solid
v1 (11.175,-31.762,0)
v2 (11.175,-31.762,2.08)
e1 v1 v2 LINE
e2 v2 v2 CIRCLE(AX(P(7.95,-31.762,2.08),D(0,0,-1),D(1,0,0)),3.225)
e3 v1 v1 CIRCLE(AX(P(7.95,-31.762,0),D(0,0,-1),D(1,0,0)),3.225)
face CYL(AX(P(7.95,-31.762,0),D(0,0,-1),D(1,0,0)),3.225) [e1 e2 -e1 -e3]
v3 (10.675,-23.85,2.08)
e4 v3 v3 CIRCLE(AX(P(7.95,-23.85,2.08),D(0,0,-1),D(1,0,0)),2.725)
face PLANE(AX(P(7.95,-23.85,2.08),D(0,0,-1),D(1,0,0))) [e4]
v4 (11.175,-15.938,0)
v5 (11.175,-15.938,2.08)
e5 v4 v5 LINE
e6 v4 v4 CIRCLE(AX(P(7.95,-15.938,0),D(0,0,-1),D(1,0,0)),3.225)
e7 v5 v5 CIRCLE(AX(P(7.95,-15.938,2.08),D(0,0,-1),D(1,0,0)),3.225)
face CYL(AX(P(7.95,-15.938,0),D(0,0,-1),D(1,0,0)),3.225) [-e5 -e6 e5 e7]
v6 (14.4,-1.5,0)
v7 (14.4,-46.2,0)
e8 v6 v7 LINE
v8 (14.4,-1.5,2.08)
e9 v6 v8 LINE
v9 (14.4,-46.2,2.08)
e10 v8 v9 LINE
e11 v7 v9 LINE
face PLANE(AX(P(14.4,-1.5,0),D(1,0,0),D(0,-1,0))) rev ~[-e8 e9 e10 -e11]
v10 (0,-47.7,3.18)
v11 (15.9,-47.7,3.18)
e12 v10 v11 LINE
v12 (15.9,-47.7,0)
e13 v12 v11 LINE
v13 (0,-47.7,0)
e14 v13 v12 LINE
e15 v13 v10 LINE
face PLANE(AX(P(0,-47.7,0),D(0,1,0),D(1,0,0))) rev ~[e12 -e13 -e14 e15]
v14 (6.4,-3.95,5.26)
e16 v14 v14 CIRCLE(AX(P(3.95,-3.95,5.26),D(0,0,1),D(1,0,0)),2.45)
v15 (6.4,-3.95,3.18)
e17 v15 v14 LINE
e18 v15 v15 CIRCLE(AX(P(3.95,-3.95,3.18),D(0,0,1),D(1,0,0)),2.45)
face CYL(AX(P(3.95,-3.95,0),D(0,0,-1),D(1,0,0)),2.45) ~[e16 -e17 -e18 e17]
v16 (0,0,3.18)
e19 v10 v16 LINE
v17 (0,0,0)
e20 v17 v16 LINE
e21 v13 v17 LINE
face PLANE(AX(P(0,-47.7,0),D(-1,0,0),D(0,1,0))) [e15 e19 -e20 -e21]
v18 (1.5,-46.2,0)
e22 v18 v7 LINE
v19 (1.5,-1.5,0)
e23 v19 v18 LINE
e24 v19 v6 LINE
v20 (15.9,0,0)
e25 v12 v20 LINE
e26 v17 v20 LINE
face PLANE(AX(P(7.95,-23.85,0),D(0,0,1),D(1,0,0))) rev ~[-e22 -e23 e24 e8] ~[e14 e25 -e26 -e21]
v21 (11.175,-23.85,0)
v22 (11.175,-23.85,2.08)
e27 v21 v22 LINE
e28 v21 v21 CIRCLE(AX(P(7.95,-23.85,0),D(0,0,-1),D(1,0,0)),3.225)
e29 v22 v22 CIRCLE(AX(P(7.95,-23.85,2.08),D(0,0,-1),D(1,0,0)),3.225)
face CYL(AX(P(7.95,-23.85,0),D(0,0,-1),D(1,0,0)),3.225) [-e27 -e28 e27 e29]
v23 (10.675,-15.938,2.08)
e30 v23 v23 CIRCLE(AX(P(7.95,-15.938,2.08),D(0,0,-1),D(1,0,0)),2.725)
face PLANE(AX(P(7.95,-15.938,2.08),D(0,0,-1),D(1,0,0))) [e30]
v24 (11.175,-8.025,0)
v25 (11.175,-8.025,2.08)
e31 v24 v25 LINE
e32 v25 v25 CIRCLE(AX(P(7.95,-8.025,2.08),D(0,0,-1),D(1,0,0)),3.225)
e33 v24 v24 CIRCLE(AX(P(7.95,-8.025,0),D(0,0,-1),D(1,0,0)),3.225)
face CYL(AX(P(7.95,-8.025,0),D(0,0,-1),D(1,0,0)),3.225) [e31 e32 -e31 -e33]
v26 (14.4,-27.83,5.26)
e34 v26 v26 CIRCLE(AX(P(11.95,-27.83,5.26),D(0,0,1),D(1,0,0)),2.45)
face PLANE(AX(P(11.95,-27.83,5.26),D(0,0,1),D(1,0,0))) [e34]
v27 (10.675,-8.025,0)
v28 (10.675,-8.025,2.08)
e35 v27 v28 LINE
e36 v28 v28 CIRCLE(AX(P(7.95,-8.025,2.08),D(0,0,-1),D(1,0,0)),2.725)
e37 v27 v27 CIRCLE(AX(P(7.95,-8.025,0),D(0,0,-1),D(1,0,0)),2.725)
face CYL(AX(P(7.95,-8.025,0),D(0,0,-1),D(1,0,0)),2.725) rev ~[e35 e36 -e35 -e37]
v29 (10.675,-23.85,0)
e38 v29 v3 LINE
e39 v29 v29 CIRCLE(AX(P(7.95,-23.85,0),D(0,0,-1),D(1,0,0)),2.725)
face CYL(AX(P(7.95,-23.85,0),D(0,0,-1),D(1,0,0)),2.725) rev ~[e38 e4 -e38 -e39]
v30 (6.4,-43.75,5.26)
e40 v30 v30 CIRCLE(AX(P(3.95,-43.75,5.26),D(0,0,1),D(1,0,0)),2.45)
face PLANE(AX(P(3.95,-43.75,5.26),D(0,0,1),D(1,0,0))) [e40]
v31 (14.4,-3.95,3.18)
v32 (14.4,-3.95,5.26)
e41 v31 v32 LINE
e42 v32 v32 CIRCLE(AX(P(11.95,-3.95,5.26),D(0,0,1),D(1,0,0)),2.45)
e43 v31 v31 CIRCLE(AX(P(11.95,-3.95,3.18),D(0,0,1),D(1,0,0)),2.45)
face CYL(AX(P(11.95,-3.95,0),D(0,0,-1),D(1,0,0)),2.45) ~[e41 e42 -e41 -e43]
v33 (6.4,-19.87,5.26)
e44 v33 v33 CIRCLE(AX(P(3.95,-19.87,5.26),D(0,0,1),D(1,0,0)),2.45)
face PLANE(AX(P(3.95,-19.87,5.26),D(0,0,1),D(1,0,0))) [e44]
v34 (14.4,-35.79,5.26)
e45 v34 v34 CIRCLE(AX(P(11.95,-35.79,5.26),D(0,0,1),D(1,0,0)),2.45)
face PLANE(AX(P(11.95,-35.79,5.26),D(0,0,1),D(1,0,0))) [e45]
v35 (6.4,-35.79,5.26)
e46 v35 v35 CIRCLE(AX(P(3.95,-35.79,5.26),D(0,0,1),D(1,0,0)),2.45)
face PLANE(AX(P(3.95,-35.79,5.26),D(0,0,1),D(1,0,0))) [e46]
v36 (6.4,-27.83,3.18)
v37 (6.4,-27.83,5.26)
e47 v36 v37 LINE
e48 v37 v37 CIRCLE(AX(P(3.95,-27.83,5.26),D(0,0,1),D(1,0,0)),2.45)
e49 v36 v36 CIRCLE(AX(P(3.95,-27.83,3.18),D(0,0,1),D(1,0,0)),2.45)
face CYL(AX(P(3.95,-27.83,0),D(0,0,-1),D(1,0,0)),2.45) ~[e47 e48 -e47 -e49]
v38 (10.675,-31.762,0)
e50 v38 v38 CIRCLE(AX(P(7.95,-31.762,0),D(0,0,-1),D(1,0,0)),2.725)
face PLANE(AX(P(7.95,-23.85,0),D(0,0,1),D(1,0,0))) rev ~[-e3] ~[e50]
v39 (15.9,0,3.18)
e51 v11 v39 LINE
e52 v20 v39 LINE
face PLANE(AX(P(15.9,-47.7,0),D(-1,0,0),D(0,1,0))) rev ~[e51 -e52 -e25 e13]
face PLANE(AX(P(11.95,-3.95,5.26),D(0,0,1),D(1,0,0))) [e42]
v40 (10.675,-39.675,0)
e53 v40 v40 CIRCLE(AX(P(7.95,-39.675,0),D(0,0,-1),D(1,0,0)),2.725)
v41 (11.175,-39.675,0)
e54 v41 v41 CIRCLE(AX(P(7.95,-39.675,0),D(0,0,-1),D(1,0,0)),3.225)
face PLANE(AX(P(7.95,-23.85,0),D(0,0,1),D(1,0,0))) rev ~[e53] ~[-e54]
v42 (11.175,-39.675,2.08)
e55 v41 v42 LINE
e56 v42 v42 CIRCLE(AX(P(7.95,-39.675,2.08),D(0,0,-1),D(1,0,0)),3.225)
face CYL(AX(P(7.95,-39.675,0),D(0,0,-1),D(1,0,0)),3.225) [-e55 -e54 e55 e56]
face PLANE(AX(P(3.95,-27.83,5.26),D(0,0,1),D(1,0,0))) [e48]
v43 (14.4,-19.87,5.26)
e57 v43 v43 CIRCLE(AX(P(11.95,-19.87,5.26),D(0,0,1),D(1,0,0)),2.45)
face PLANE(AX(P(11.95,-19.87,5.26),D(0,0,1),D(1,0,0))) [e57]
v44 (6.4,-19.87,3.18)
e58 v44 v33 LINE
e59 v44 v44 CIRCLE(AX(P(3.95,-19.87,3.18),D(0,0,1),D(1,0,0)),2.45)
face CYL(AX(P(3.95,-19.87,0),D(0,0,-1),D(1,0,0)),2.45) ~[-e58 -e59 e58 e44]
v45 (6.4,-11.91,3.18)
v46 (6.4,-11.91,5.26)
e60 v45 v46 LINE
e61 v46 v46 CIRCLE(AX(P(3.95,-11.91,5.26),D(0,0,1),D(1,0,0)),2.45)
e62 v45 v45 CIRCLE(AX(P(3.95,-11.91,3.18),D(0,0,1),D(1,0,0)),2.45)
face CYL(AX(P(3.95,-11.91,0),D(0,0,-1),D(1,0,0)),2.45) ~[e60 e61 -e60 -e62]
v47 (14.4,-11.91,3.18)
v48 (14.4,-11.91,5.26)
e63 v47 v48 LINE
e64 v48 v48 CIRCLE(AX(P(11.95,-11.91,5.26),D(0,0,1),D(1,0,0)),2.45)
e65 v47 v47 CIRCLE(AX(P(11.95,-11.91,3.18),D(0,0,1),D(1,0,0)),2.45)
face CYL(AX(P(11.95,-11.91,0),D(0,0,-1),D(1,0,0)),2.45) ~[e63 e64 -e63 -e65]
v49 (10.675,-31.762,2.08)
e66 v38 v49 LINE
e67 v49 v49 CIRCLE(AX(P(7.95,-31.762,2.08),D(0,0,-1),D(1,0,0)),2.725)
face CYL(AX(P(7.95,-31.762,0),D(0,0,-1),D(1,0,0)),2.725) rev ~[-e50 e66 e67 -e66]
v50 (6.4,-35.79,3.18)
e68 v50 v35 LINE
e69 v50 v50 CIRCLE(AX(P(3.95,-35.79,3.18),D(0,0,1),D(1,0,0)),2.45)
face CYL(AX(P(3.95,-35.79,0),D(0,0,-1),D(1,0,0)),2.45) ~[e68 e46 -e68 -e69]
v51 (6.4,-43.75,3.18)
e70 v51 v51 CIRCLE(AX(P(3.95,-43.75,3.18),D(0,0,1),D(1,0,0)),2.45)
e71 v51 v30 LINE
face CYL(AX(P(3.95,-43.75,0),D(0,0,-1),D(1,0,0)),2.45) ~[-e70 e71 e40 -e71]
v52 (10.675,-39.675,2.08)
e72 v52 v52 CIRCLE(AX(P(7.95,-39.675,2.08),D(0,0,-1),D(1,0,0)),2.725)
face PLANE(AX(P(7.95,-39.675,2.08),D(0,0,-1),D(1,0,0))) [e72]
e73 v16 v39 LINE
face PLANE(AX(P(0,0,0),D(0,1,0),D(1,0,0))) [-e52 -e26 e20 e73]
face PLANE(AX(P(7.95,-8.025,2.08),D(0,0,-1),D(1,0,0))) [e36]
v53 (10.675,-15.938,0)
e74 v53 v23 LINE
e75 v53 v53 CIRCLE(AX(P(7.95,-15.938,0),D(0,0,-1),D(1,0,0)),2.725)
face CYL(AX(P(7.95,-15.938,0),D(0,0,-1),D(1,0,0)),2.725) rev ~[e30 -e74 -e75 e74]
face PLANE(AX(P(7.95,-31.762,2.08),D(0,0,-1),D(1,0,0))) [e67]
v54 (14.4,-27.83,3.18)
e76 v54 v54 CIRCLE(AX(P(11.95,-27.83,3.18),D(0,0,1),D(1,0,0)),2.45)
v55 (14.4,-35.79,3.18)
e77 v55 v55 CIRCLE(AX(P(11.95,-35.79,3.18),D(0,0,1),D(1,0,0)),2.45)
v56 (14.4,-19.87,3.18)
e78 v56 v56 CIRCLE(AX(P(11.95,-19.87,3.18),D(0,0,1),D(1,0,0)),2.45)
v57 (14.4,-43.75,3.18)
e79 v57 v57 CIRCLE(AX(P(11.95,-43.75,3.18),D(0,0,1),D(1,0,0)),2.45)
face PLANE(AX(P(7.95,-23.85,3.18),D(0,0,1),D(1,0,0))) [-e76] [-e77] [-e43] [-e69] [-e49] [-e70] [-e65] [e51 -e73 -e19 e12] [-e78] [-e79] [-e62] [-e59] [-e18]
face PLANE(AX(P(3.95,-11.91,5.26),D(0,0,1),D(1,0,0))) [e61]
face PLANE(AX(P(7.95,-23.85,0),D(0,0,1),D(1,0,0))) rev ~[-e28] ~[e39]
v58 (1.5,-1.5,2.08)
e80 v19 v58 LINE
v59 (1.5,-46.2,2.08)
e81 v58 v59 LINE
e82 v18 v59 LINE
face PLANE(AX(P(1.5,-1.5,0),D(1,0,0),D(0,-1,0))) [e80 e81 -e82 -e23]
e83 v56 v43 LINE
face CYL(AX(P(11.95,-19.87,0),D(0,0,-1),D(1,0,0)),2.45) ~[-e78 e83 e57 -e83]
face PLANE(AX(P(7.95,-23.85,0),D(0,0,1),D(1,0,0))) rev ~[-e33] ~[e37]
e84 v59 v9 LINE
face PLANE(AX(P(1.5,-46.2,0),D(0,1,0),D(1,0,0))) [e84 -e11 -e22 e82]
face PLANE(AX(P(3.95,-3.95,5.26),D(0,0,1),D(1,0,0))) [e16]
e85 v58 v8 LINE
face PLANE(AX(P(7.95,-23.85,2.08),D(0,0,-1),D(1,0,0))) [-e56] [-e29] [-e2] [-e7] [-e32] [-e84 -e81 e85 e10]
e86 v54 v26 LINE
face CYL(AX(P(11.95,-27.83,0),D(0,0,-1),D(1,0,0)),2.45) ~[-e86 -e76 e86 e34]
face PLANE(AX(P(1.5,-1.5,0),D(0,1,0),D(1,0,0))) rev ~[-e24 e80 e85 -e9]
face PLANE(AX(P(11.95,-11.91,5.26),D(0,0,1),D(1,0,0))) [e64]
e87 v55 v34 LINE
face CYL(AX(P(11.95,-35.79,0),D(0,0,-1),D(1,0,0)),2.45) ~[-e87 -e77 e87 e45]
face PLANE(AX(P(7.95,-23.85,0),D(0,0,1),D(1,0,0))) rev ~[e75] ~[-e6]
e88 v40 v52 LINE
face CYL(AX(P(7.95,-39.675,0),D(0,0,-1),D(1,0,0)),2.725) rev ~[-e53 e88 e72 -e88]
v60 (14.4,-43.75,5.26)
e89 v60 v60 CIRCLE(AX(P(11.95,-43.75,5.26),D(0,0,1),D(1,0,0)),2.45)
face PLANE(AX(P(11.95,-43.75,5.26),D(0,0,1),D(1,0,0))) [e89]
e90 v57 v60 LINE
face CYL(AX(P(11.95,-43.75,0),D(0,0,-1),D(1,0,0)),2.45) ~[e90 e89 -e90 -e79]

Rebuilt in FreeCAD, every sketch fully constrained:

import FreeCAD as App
import Part
import Sketcher

doc = App.newDocument("Part")
body = doc.addObject("PartDesign::Body", "Body")

# Sketch on XY plane
sketch1 = doc.addObject("Sketcher::SketchObject", "Sketch")
body.addObject(sketch1)
sketch1.AttachmentSupport = (doc.XY_Plane, [""])
sketch1.MapMode = "FlatFace"
sketch1.addGeometry(Part.LineSegment(App.Vector(0, 0, 0), App.Vector(0, -47.7, 0)), False)
sketch1.addGeometry(Part.LineSegment(App.Vector(0, -47.7, 0), App.Vector(15.9, -47.7, 0)), False)
sketch1.addGeometry(Part.LineSegment(App.Vector(15.9, -47.7, 0), App.Vector(15.9, 0, 0)), False)
sketch1.addGeometry(Part.LineSegment(App.Vector(15.9, 0, 0), App.Vector(0, 0, 0)), False)
sketch1.addGeometry(Part.Circle(App.Vector(4, -43.8, 0), App.Vector(0, 0, 1), 2.5), False)
sketch1.addGeometry(Part.Circle(App.Vector(4, -35.8, 0), App.Vector(0, 0, 1), 2.5), False)
sketch1.addGeometry(Part.Circle(App.Vector(4, -27.8, 0), App.Vector(0, 0, 1), 2.5), False)
sketch1.addGeometry(Part.Circle(App.Vector(11.9, -43.8, 0), App.Vector(0, 0, 1), 2.5), False)
sketch1.addGeometry(Part.Circle(App.Vector(11.9, -35.8, 0), App.Vector(0, 0, 1), 2.5), False)
sketch1.addGeometry(Part.Circle(App.Vector(11.9, -27.8, 0), App.Vector(0, 0, 1), 2.5), False)
sketch1.addGeometry(Part.Circle(App.Vector(4, -19.9, 0), App.Vector(0, 0, 1), 2.5), False)
sketch1.addGeometry(Part.Circle(App.Vector(4, -11.9, 0), App.Vector(0, 0, 1), 2.5), False)
sketch1.addGeometry(Part.Circle(App.Vector(4, -4, 0), App.Vector(0, 0, 1), 2.5), False)
sketch1.addGeometry(Part.Circle(App.Vector(11.9, -19.9, 0), App.Vector(0, 0, 1), 2.5), False)
sketch1.addGeometry(Part.Circle(App.Vector(11.9, -11.9, 0), App.Vector(0, 0, 1), 2.5), False)
sketch1.addGeometry(Part.Circle(App.Vector(11.9, -4, 0), App.Vector(0, 0, 1), 2.5), False)
sketch1.addConstraint(Sketcher.Constraint("Coincident", 0, 2, 1, 1))
sketch1.addConstraint(Sketcher.Constraint("Coincident", 1, 2, 2, 1))
sketch1.addConstraint(Sketcher.Constraint("Coincident", 2, 2, 3, 1))
sketch1.addConstraint(Sketcher.Constraint("Coincident", 3, 2, 0, 1))
sketch1.addConstraint(Sketcher.Constraint("Vertical", 0))
sketch1.addConstraint(Sketcher.Constraint("Horizontal", 1))
sketch1.addConstraint(Sketcher.Constraint("Vertical", 2))
sketch1.addConstraint(Sketcher.Constraint("Horizontal", 3))
sketch1.addConstraint(Sketcher.Constraint("Coincident", 3, 2, -1, 1))
sketch1.addConstraint(Sketcher.Constraint("Equal", 4, 5))
sketch1.addConstraint(Sketcher.Constraint("Equal", 5, 6))
sketch1.addConstraint(Sketcher.Constraint("Equal", 6, 7))
sketch1.addConstraint(Sketcher.Constraint("Equal", 7, 8))
sketch1.addConstraint(Sketcher.Constraint("Equal", 8, 9))
sketch1.addConstraint(Sketcher.Constraint("Equal", 9, 10))
sketch1.addConstraint(Sketcher.Constraint("Equal", 10, 11))
sketch1.addConstraint(Sketcher.Constraint("Equal", 11, 12))
sketch1.addConstraint(Sketcher.Constraint("Equal", 12, 13))
sketch1.addConstraint(Sketcher.Constraint("Equal", 13, 14))
sketch1.addConstraint(Sketcher.Constraint("Equal", 14, 15))
sketch1.addConstraint(Sketcher.Constraint("Horizontal", 4, 3, 7, 3))
sketch1.addConstraint(Sketcher.Constraint("Horizontal", 5, 3, 8, 3))
sketch1.addConstraint(Sketcher.Constraint("Horizontal", 6, 3, 9, 3))
sketch1.addConstraint(Sketcher.Constraint("Horizontal", 10, 3, 13, 3))
sketch1.addConstraint(Sketcher.Constraint("Horizontal", 11, 3, 14, 3))
sketch1.addConstraint(Sketcher.Constraint("Horizontal", 12, 3, 15, 3))
sketch1.addConstraint(Sketcher.Constraint("Vertical", 4, 3, 5, 3))
sketch1.addConstraint(Sketcher.Constraint("Vertical", 5, 3, 6, 3))
sketch1.addConstraint(Sketcher.Constraint("Vertical", 7, 3, 8, 3))
sketch1.addConstraint(Sketcher.Constraint("Vertical", 8, 3, 9, 3))
sketch1.addConstraint(Sketcher.Constraint("Vertical", 6, 3, 10, 3))
sketch1.addConstraint(Sketcher.Constraint("Vertical", 10, 3, 11, 3))
sketch1.addConstraint(Sketcher.Constraint("Vertical", 11, 3, 12, 3))
sketch1.addConstraint(Sketcher.Constraint("Vertical", 9, 3, 13, 3))
sketch1.addConstraint(Sketcher.Constraint("Vertical", 13, 3, 14, 3))
sketch1.addConstraint(Sketcher.Constraint("Vertical", 14, 3, 15, 3))
sketch1.addConstraint(Sketcher.Constraint("Diameter", 4, 4.9))
sketch1.addConstraint(Sketcher.Constraint("DistanceX", 1, 1, 1, 2, 15.9))
sketch1.addConstraint(Sketcher.Constraint("DistanceY", 0, 2, 0, 1, 47.7))
sketch1.addConstraint(Sketcher.Constraint("DistanceX", 4, 3, 7, 3, 8.0))
sketch1.addConstraint(Sketcher.Constraint("DistanceX", -1, 1, 4, 3, 3.95))
sketch1.addConstraint(Sketcher.Constraint("DistanceY", 4, 3, -1, 1, 43.75))
sketch1.addConstraint(Sketcher.Constraint("DistanceY", 5, 3, -1, 1, 35.79))
sketch1.addConstraint(Sketcher.Constraint("DistanceY", 6, 3, -1, 1, 27.83))
sketch1.addConstraint(Sketcher.Constraint("DistanceY", 10, 3, -1, 1, 19.87))
sketch1.addConstraint(Sketcher.Constraint("DistanceY", 11, 3, -1, 1, 11.91))
sketch1.addConstraint(Sketcher.Constraint("DistanceY", 12, 3, -1, 1, 3.95))
pad1 = doc.addObject("PartDesign::Pad", "Pad")
body.addObject(pad1)
pad1.Profile = sketch1
pad1.Length = 3.18

# Sketch on XY plane
sketch2 = doc.addObject("Sketcher::SketchObject", "Sketch001")
body.addObject(sketch2)
sketch2.AttachmentSupport = (doc.XY_Plane, [""])
sketch2.MapMode = "FlatFace"
sketch2.addGeometry(Part.Circle(App.Vector(4, -4, 0), App.Vector(0, 0, 1), 2.5), False)
sketch2.addGeometry(Part.Circle(App.Vector(11.9, -4, 0), App.Vector(0, 0, 1), 2.5), False)
sketch2.addGeometry(Part.Circle(App.Vector(11.9, -11.9, 0), App.Vector(0, 0, 1), 2.5), False)
sketch2.addGeometry(Part.Circle(App.Vector(4, -11.9, 0), App.Vector(0, 0, 1), 2.5), False)
sketch2.addGeometry(Part.Circle(App.Vector(4, -19.9, 0), App.Vector(0, 0, 1), 2.5), False)
sketch2.addGeometry(Part.Circle(App.Vector(11.9, -19.9, 0), App.Vector(0, 0, 1), 2.5), False)
sketch2.addGeometry(Part.Circle(App.Vector(11.9, -27.8, 0), App.Vector(0, 0, 1), 2.5), False)
sketch2.addGeometry(Part.Circle(App.Vector(4, -27.8, 0), App.Vector(0, 0, 1), 2.5), False)
sketch2.addGeometry(Part.Circle(App.Vector(4, -35.8, 0), App.Vector(0, 0, 1), 2.5), False)
sketch2.addGeometry(Part.Circle(App.Vector(11.9, -35.8, 0), App.Vector(0, 0, 1), 2.5), False)
sketch2.addGeometry(Part.Circle(App.Vector(11.9, -43.8, 0), App.Vector(0, 0, 1), 2.5), False)
sketch2.addGeometry(Part.Circle(App.Vector(4, -43.8, 0), App.Vector(0, 0, 1), 2.5), False)
sketch2.addConstraint(Sketcher.Constraint("Equal", 0, 1))
sketch2.addConstraint(Sketcher.Constraint("Equal", 1, 2))
sketch2.addConstraint(Sketcher.Constraint("Equal", 2, 3))
sketch2.addConstraint(Sketcher.Constraint("Equal", 3, 4))
sketch2.addConstraint(Sketcher.Constraint("Equal", 4, 5))
sketch2.addConstraint(Sketcher.Constraint("Equal", 5, 6))
sketch2.addConstraint(Sketcher.Constraint("Equal", 6, 7))
sketch2.addConstraint(Sketcher.Constraint("Equal", 7, 8))
sketch2.addConstraint(Sketcher.Constraint("Equal", 8, 9))
sketch2.addConstraint(Sketcher.Constraint("Equal", 9, 10))
sketch2.addConstraint(Sketcher.Constraint("Equal", 10, 11))
sketch2.addConstraint(Sketcher.Constraint("Horizontal", 0, 3, 1, 3))
sketch2.addConstraint(Sketcher.Constraint("Horizontal", 2, 3, 3, 3))
sketch2.addConstraint(Sketcher.Constraint("Horizontal", 4, 3, 5, 3))
sketch2.addConstraint(Sketcher.Constraint("Horizontal", 6, 3, 7, 3))
sketch2.addConstraint(Sketcher.Constraint("Horizontal", 8, 3, 9, 3))
sketch2.addConstraint(Sketcher.Constraint("Horizontal", 10, 3, 11, 3))
sketch2.addConstraint(Sketcher.Constraint("Vertical", 1, 3, 2, 3))
sketch2.addConstraint(Sketcher.Constraint("Vertical", 0, 3, 3, 3))
sketch2.addConstraint(Sketcher.Constraint("Vertical", 3, 3, 4, 3))
sketch2.addConstraint(Sketcher.Constraint("Vertical", 2, 3, 5, 3))
sketch2.addConstraint(Sketcher.Constraint("Vertical", 5, 3, 6, 3))
sketch2.addConstraint(Sketcher.Constraint("Vertical", 4, 3, 7, 3))
sketch2.addConstraint(Sketcher.Constraint("Vertical", 7, 3, 8, 3))
sketch2.addConstraint(Sketcher.Constraint("Vertical", 6, 3, 9, 3))
sketch2.addConstraint(Sketcher.Constraint("Vertical", 9, 3, 10, 3))
sketch2.addConstraint(Sketcher.Constraint("Vertical", 8, 3, 11, 3))
sketch2.addConstraint(Sketcher.Constraint("Diameter", 0, 4.9))
sketch2.addConstraint(Sketcher.Constraint("DistanceX", 0, 3, 1, 3, 8.0))
sketch2.addConstraint(Sketcher.Constraint("DistanceX", -1, 1, 0, 3, 3.95))
sketch2.addConstraint(Sketcher.Constraint("DistanceY", 0, 3, -1, 1, 3.95))
sketch2.addConstraint(Sketcher.Constraint("DistanceY", 2, 3, -1, 1, 11.91))
sketch2.addConstraint(Sketcher.Constraint("DistanceY", 4, 3, -1, 1, 19.87))
sketch2.addConstraint(Sketcher.Constraint("DistanceY", 6, 3, -1, 1, 27.83))
sketch2.addConstraint(Sketcher.Constraint("DistanceY", 8, 3, -1, 1, 35.79))
sketch2.addConstraint(Sketcher.Constraint("DistanceY", 10, 3, -1, 1, 43.75))
pad2 = doc.addObject("PartDesign::Pad", "Pad001")
body.addObject(pad2)
pad2.Profile = sketch2
pad2.Length = 5.26

# Sketch on XY plane
sketch3 = doc.addObject("Sketcher::SketchObject", "Sketch002")
body.addObject(sketch3)
sketch3.AttachmentSupport = (doc.XY_Plane, [""])
sketch3.MapMode = "FlatFace"
sketch3.addGeometry(Part.LineSegment(App.Vector(1.5, -46.2, 0), App.Vector(1.5, -1.5, 0)), False)
sketch3.addGeometry(Part.LineSegment(App.Vector(1.5, -1.5, 0), App.Vector(14.4, -1.5, 0)), False)
sketch3.addGeometry(Part.LineSegment(App.Vector(14.4, -1.5, 0), App.Vector(14.4, -46.2, 0)), False)
sketch3.addGeometry(Part.LineSegment(App.Vector(14.4, -46.2, 0), App.Vector(1.5, -46.2, 0)), False)
sketch3.addGeometry(Part.Circle(App.Vector(8, -8, 0), App.Vector(0, 0, 1), 3.2), False)
sketch3.addGeometry(Part.Circle(App.Vector(8, -15.9, 0), App.Vector(0, 0, 1), 3.2), False)
sketch3.addGeometry(Part.Circle(App.Vector(8, -23.9, 0), App.Vector(0, 0, 1), 3.2), False)
sketch3.addGeometry(Part.Circle(App.Vector(8, -31.8, 0), App.Vector(0, 0, 1), 3.2), False)
sketch3.addGeometry(Part.Circle(App.Vector(8, -39.7, 0), App.Vector(0, 0, 1), 3.2), False)
sketch3.addGeometry(Part.Circle(App.Vector(8, -39.7, 0), App.Vector(0, 0, 1), 2.7), False)
sketch3.addGeometry(Part.Circle(App.Vector(8, -31.8, 0), App.Vector(0, 0, 1), 2.7), False)
sketch3.addGeometry(Part.Circle(App.Vector(8, -23.9, 0), App.Vector(0, 0, 1), 2.7), False)
sketch3.addGeometry(Part.Circle(App.Vector(8, -15.9, 0), App.Vector(0, 0, 1), 2.7), False)
sketch3.addGeometry(Part.Circle(App.Vector(8, -8, 0), App.Vector(0, 0, 1), 2.7), False)
sketch3.addConstraint(Sketcher.Constraint("Coincident", 0, 2, 1, 1))
sketch3.addConstraint(Sketcher.Constraint("Coincident", 1, 2, 2, 1))
sketch3.addConstraint(Sketcher.Constraint("Coincident", 2, 2, 3, 1))
sketch3.addConstraint(Sketcher.Constraint("Coincident", 3, 2, 0, 1))
sketch3.addConstraint(Sketcher.Constraint("Vertical", 0))
sketch3.addConstraint(Sketcher.Constraint("Horizontal", 1))
sketch3.addConstraint(Sketcher.Constraint("Vertical", 2))
sketch3.addConstraint(Sketcher.Constraint("Horizontal", 3))
sketch3.addConstraint(Sketcher.Constraint("Coincident", 9, 3, 8, 3))
sketch3.addConstraint(Sketcher.Constraint("Coincident", 10, 3, 7, 3))
sketch3.addConstraint(Sketcher.Constraint("Coincident", 11, 3, 6, 3))
sketch3.addConstraint(Sketcher.Constraint("Coincident", 12, 3, 5, 3))
sketch3.addConstraint(Sketcher.Constraint("Coincident", 13, 3, 4, 3))
sketch3.addConstraint(Sketcher.Constraint("Equal", 4, 5))
sketch3.addConstraint(Sketcher.Constraint("Equal", 5, 6))
sketch3.addConstraint(Sketcher.Constraint("Equal", 6, 7))
sketch3.addConstraint(Sketcher.Constraint("Equal", 7, 8))
sketch3.addConstraint(Sketcher.Constraint("Equal", 9, 10))
sketch3.addConstraint(Sketcher.Constraint("Equal", 10, 11))
sketch3.addConstraint(Sketcher.Constraint("Equal", 11, 12))
sketch3.addConstraint(Sketcher.Constraint("Equal", 12, 13))
sketch3.addConstraint(Sketcher.Constraint("Vertical", 4, 3, 5, 3))
sketch3.addConstraint(Sketcher.Constraint("Vertical", 5, 3, 6, 3))
sketch3.addConstraint(Sketcher.Constraint("Vertical", 6, 3, 7, 3))
sketch3.addConstraint(Sketcher.Constraint("Vertical", 7, 3, 8, 3))
sketch3.addConstraint(Sketcher.Constraint("Diameter", 4, 6.45))
sketch3.addConstraint(Sketcher.Constraint("Diameter", 9, 5.45))
sketch3.addConstraint(Sketcher.Constraint("DistanceX", 1, 1, 1, 2, 12.9))
sketch3.addConstraint(Sketcher.Constraint("DistanceY", 0, 1, 0, 2, 44.7))
sketch3.addConstraint(Sketcher.Constraint("DistanceX", -1, 1, 0, 2, 1.5))
sketch3.addConstraint(Sketcher.Constraint("DistanceY", 0, 2, -1, 1, 1.5))
sketch3.addConstraint(Sketcher.Constraint("DistanceX", -1, 1, 4, 3, 7.95))
sketch3.addConstraint(Sketcher.Constraint("DistanceY", 6, 3, -1, 1, 23.85))
sketch3.addConstraint(Sketcher.Constraint("DistanceY", 8, 3, 4, 3, 31.65))
sketch3.addConstraint(Sketcher.Constraint("DistanceY", 4, 3, -1, 1, 8.025))
sketch3.addConstraint(Sketcher.Constraint("DistanceY", 5, 3, -1, 1, 15.938))
sketch3.addConstraint(Sketcher.Constraint("DistanceY", 7, 3, -1, 1, 31.762))
pocket1 = doc.addObject("PartDesign::Pocket", "Pocket")
body.addObject(pocket1)
pocket1.Profile = sketch3
pocket1.Length = 2.08
pocket1.Reversed = True

doc.recompute()
